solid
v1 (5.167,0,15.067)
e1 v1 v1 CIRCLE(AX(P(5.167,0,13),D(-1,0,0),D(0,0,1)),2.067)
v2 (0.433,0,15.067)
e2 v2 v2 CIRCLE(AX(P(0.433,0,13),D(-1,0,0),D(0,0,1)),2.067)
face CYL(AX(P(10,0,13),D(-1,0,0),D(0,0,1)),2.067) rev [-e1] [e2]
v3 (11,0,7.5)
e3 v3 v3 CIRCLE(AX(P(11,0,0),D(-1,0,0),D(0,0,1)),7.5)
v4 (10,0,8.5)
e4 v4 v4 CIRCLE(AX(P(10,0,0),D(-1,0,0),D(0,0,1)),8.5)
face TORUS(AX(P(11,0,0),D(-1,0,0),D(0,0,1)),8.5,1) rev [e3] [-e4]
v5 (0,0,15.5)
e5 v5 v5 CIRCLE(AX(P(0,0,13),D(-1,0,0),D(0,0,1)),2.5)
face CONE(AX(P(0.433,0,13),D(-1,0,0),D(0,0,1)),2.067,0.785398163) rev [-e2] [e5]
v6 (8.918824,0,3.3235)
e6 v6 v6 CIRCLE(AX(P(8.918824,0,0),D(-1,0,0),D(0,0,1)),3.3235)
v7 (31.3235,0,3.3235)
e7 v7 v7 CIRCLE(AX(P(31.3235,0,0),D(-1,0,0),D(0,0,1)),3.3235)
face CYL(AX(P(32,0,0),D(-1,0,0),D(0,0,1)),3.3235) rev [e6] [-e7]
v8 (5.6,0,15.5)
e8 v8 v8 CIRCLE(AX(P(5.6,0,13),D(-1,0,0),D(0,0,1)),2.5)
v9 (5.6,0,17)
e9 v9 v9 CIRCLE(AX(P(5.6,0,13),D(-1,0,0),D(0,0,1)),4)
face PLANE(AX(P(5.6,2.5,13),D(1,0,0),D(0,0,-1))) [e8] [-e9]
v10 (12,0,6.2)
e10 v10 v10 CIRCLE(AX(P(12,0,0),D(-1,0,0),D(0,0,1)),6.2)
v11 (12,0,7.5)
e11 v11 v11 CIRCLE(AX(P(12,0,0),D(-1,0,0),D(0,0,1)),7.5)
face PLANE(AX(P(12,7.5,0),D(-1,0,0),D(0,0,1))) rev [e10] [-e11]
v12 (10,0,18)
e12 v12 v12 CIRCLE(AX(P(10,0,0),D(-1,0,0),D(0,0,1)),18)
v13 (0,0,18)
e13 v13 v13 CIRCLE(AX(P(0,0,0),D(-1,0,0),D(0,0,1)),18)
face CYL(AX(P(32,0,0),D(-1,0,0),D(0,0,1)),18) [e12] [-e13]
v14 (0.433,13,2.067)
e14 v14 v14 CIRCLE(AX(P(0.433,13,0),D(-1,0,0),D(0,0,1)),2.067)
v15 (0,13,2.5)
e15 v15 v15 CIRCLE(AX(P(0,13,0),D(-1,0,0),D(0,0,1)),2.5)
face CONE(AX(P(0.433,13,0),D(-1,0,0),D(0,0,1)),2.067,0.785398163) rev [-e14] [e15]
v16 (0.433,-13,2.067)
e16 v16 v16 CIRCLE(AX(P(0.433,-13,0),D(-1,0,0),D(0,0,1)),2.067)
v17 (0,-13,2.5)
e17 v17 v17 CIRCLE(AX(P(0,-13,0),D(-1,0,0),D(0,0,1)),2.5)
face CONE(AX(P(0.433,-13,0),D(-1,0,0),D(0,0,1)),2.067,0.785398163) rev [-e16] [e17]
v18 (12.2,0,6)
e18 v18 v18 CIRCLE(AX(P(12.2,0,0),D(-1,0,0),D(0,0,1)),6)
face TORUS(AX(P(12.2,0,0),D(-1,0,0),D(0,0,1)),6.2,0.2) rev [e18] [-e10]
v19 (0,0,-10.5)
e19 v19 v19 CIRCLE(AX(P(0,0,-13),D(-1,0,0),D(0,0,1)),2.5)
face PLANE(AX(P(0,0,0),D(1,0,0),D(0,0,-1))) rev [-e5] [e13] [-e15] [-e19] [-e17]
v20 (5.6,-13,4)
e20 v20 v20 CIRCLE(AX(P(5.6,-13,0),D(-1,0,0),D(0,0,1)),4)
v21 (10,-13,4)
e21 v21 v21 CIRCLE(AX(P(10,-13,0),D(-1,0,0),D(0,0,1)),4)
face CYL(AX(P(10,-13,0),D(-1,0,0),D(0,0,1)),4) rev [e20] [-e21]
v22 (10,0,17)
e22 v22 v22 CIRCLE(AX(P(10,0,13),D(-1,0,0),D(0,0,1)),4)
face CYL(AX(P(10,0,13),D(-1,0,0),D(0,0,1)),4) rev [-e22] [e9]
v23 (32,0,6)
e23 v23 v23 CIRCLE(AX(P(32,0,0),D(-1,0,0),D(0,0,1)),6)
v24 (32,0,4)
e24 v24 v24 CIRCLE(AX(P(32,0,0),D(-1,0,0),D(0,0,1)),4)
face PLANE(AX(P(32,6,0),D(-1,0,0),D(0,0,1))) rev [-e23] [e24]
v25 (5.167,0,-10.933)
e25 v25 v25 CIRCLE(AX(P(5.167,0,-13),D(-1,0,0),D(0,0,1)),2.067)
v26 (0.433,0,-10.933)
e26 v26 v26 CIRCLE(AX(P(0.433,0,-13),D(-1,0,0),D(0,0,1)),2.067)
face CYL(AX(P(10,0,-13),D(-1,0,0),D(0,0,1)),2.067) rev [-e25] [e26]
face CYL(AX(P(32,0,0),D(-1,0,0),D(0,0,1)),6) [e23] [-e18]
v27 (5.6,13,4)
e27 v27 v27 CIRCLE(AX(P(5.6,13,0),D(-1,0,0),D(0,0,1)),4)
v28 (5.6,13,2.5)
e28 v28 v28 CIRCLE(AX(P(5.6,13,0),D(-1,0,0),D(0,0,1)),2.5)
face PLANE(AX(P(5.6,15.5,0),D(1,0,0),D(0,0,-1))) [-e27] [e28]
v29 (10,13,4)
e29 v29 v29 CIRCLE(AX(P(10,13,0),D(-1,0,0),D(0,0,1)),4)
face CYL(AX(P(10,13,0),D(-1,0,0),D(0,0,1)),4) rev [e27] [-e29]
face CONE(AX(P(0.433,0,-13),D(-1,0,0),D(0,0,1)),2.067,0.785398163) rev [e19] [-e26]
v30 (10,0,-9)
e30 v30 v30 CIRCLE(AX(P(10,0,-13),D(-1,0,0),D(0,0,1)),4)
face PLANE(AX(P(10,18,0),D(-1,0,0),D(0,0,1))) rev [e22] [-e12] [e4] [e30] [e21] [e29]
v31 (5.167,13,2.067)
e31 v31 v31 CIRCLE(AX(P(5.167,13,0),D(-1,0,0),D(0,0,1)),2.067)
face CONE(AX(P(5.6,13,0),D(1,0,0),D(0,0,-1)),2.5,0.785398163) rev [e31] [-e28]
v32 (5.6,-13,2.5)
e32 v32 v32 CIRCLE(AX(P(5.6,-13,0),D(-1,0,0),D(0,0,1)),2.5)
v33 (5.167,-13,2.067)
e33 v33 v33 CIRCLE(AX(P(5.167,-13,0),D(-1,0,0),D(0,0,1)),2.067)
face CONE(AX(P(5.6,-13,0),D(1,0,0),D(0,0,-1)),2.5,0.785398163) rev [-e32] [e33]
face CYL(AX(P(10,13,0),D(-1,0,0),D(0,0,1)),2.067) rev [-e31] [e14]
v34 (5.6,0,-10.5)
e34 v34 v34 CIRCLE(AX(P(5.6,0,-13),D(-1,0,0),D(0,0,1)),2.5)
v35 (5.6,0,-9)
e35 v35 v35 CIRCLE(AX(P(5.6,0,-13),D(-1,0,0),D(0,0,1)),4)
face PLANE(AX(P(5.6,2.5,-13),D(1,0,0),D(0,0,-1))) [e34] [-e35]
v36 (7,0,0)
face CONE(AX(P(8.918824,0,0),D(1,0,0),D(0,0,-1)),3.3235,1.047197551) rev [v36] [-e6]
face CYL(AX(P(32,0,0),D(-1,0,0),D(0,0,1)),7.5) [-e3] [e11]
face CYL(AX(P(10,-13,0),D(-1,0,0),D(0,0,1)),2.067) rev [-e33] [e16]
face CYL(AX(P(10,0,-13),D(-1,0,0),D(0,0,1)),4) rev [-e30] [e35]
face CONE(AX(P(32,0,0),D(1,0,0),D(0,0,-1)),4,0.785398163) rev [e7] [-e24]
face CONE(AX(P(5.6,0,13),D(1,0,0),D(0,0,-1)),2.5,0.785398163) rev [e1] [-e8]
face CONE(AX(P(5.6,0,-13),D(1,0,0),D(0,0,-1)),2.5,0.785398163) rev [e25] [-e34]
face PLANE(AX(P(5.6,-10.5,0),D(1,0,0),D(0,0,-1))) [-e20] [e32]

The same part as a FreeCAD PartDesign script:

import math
import FreeCAD as App
import Part
import Sketcher

V = App.Vector
Q = App.Units.Quantity


def add_polygon(sketch, points):
    """Adds a closed chain of lines whose ends are joined by coincident constraints."""
    first, n = sketch.GeometryCount, len(points)
    for a, b in zip(points, points[1:] + points[:1]):
        sketch.addGeometry(Part.LineSegment(App.Vector(*a, 0), App.Vector(*b, 0)), False)
    for i in range(n):
        sketch.addConstraint(Sketcher.Constraint("Coincident", first + i, 2, first + (i + 1) % n, 1))

doc = App.newDocument("Part")
params = doc.addObject("Spreadsheet::Sheet", "Params")
for row, (alias, value) in enumerate([
    ("sketch1_radius", "1 mm"),
    ("sketch1_radius2", "0.2 mm"),
    ("sketch1_width", "32 mm"),
    ("sketch1_width2", "1 mm"),
    ("sketch1_width3", "10 mm"),
    ("revolution_angle", "360 deg"),
    ("sketch2_width", "10 mm"),
    ("sketch2_height", "4 mm"),
    ("sketch2_width2", "4.4 mm"),
    ("sketch2_height2", "2.5 mm"),
    ("groove_angle", "360 deg"),
    ("sketch3_width", "10 mm"),
    ("sketch3_height", "4 mm"),
    ("sketch3_width2", "4.4 mm"),
    ("sketch3_height2", "2.5 mm"),
    ("groove2_angle", "360 deg"),
    ("sketch4_width", "10 mm"),
    ("sketch4_height", "4 mm"),
    ("sketch4_width2", "4.4 mm"),
    ("sketch4_height2", "2.5 mm"),
    ("groove3_angle", "360 deg"),
    ("sketch5_width", "10 mm"),
    ("sketch5_height", "4 mm"),
    ("sketch5_width2", "4.4 mm"),
    ("sketch5_height2", "2.5 mm"),
    ("groove4_angle", "360 deg"),
    ("sketch6_width", "25 mm"),
    ("sketch6_height", "4 mm"),
    ("groove5_angle", "360 deg"),
], start=1):
    params.set(f"A{row}", alias)
    params.set(f"B{row}", "=" + value)
    params.setAlias(f"B{row}", alias)

body = doc.addObject("PartDesign::Body", "Body")

sketch1 = body.newObject("Sketcher::SketchObject", "Sketch")
sketch1.AttachmentSupport = (doc.getObject("XY_Plane"), [""])
sketch1.MapMode = "FlatFace"
sketch1.addGeometry(Part.LineSegment(V(0, 18, 0), V(0, 0, 0)), False)
sketch1.addGeometry(Part.LineSegment(V(0, 0, 0), V(32, 0, 0)), False)
sketch1.addGeometry(Part.LineSegment(V(32, 0, 0), V(32, 6, 0)), False)
sketch1.addGeometry(Part.LineSegment(V(32, 6, 0), V(12.2, 6, 0)), False)
sketch1.addGeometry(Part.ArcOfCircle(Part.Circle(V(12.2, 6.2, 0), V(0, 0, 1), 0.2), math.radians(-180), math.radians(-90)), False)
sketch1.addGeometry(Part.LineSegment(V(12, 6.2, 0), V(12, 7.5, 0)), False)
sketch1.addGeometry(Part.LineSegment(V(12, 7.5, 0), V(11, 7.5, 0)), False)
sketch1.addGeometry(Part.ArcOfCircle(Part.Circle(V(11, 8.5, 0), V(0, 0, 1), 1), math.radians(-180), math.radians(-90)), False)
sketch1.addGeometry(Part.LineSegment(V(10, 8.5, 0), V(10, 18, 0)), False)
sketch1.addGeometry(Part.LineSegment(V(10, 18, 0), V(0, 18, 0)), False)
sketch1.addConstraint(Sketcher.Constraint("Coincident", 0, 2, 1, 1))
sketch1.addConstraint(Sketcher.Constraint("Coincident", 1, 2, 2, 1))
sketch1.addConstraint(Sketcher.Constraint("Coincident", 2, 2, 3, 1))
sketch1.addConstraint(Sketcher.Constraint("Tangent", 3, 2, 4, 2))
sketch1.addConstraint(Sketcher.Constraint("Tangent", 4, 1, 5, 1))
sketch1.addConstraint(Sketcher.Constraint("Coincident", 5, 2, 6, 1))
sketch1.addConstraint(Sketcher.Constraint("Tangent", 6, 2, 7, 2))
sketch1.addConstraint(Sketcher.Constraint("Tangent", 7, 1, 8, 1))
sketch1.addConstraint(Sketcher.Constraint("Coincident", 8, 2, 9, 1))
sketch1.addConstraint(Sketcher.Constraint("Coincident", 9, 2, 0, 1))
sketch1.addConstraint(Sketcher.Constraint("Vertical", 0))
sketch1.addConstraint(Sketcher.Constraint("Horizontal", 1))
sketch1.addConstraint(Sketcher.Constraint("Vertical", 2))
sketch1.addConstraint(Sketcher.Constraint("Horizontal", 3))
sketch1.addConstraint(Sketcher.Constraint("Vertical", 5))
sketch1.addConstraint(Sketcher.Constraint("Horizontal", 6))
sketch1.addConstraint(Sketcher.Constraint("Vertical", 8))
sketch1.addConstraint(Sketcher.Constraint("Horizontal", 9))
sketch1.addConstraint(Sketcher.Constraint("Coincident", 0, 2, -1, 1))
sketch1.addConstraint(Sketcher.Constraint("Radius", 7, 1.0))
sketch1.addConstraint(Sketcher.Constraint("Radius", 4, 0.2))
sketch1.addConstraint(Sketcher.Constraint("DistanceX", 1, 1, 1, 2, 32.0))
sketch1.addConstraint(Sketcher.Constraint("DistanceX", 6, 2, 6, 1, 1.0))
sketch1.addConstraint(Sketcher.Constraint("DistanceX", 9, 2, 9, 1, 10.0))
sketch1.addConstraint(Sketcher.Constraint("DistanceY", 0, 2, 0, 1, 18.0))
sketch1.addConstraint(Sketcher.Constraint("DistanceY", 2, 1, 2, 2, 6.0))
sketch1.addConstraint(Sketcher.Constraint("DistanceY", 5, 1, 5, 2, 1.3))
sketch1.setExpression("Constraints[19]", "Params.sketch1_radius")
sketch1.setExpression("Constraints[20]", "Params.sketch1_radius2")
sketch1.setExpression("Constraints[21]", "Params.sketch1_width")
sketch1.setExpression("Constraints[22]", "Params.sketch1_width2")
sketch1.setExpression("Constraints[23]", "Params.sketch1_width3")
revolution = body.newObject("PartDesign::Revolution", "Revolution")
revolution.Profile = sketch1
revolution.ReferenceAxis = (sketch1, ["H_Axis"])
revolution.setExpression("Angle", "Params.revolution_angle")

sketch2 = body.newObject("Sketcher::SketchObject", "Sketch001")
sketch2.AttachmentSupport = (doc.getObject("XY_Plane"), [""])
sketch2.MapMode = "FlatFace"
add_polygon(sketch2, [(0, 15.5), (0, 13), (10, 13), (10, 17), (5.6, 17), (5.6, 15.5), (5.2, 15.1), (0.4, 15.1)])
sketch2.addGeometry(Part.LineSegment(V(10, 13, 0), V(0, 13, 0)), True)
sketch2.addConstraint(Sketcher.Constraint("Vertical", 0))
sketch2.addConstraint(Sketcher.Constraint("Horizontal", 1))
sketch2.addConstraint(Sketcher.Constraint("Vertical", 2))
sketch2.addConstraint(Sketcher.Constraint("Horizontal", 3))
sketch2.addConstraint(Sketcher.Constraint("Vertical", 4))
sketch2.addConstraint(Sketcher.Constraint("Horizontal", 6))
sketch2.addConstraint(Sketcher.Constraint("Horizontal", 8))
sketch2.addConstraint(Sketcher.Constraint("Coincident", 8, 1, 1, 2))
sketch2.addConstraint(Sketcher.Constraint("PointOnObject", 0, 2, -2))
sketch2.addConstraint(Sketcher.Constraint("PointOnObject", 8, 2, -2))
sketch2.addConstraint(Sketcher.Constraint("Perpendicular", 5, 7))
sketch2.addConstraint(Sketcher.Constraint("Horizontal", 4, 2, 7, 2))
sketch2.addConstraint(Sketcher.Constraint("Equal", 5, 7))
sketch2.addConstraint(Sketcher.Constraint("DistanceX", 1, 1, 1, 2, 10.0))
sketch2.addConstraint(Sketcher.Constraint("DistanceY", 2, 1, 2, 2, 4.0))
sketch2.addConstraint(Sketcher.Constraint("DistanceX", 3, 2, 3, 1, 4.4))
sketch2.addConstraint(Sketcher.Constraint("DistanceY", 0, 2, 0, 1, 2.5))
sketch2.addConstraint(Sketcher.Constraint("DistanceY", -1, 1, 0, 2, 13.0))
sketch2.addConstraint(Sketcher.Constraint("DistanceX", 6, 2, 6, 1, 4.734))
sketch2.setExpression("Constraints[21]", "Params.sketch2_width")
sketch2.setExpression("Constraints[22]", "Params.sketch2_height")
sketch2.setExpression("Constraints[23]", "Params.sketch2_width2")
sketch2.setExpression("Constraints[24]", "Params.sketch2_height2")
groove = body.newObject("PartDesign::Groove", "Groove")
groove.Profile = sketch2
groove.ReferenceAxis = (sketch2, ["Axis0"])
groove.setExpression("Angle", "Params.groove_angle")

sketch3 = body.newObject("Sketcher::SketchObject", "Sketch002")
sketch3.AttachmentSupport = (doc.getObject("XY_Plane"), [""])
sketch3.MapMode = "FlatFace"
sketch3.AttachmentOffset = App.Placement(V(0, 0, 13), App.Rotation())
add_polygon(sketch3, [(0, 2.5), (0, 0), (10, 0), (10, 4), (5.6, 4), (5.6, 2.5), (5.2, 2.1), (0.4, 2.1)])
sketch3.addConstraint(Sketcher.Constraint("Vertical", 0))
sketch3.addConstraint(Sketcher.Constraint("Horizontal", 1))
sketch3.addConstraint(Sketcher.Constraint("Vertical", 2))
sketch3.addConstraint(Sketcher.Constraint("Horizontal", 3))
sketch3.addConstraint(Sketcher.Constraint("Vertical", 4))
sketch3.addConstraint(Sketcher.Constraint("Horizontal", 6))
sketch3.addConstraint(Sketcher.Constraint("Coincident", 0, 2, -1, 1))
sketch3.addConstraint(Sketcher.Constraint("Perpendicular", 5, 7))
sketch3.addConstraint(Sketcher.Constraint("Horizontal", 4, 2, 7, 2))
sketch3.addConstraint(Sketcher.Constraint("Equal", 5, 7))
sketch3.addConstraint(Sketcher.Constraint("DistanceX", 1, 1, 1, 2, 10.0))
sketch3.addConstraint(Sketcher.Constraint("DistanceY", 2, 1, 2, 2, 4.0))
sketch3.addConstraint(Sketcher.Constraint("DistanceX", 3, 2, 3, 1, 4.4))
sketch3.addConstraint(Sketcher.Constraint("DistanceY", 0, 2, 0, 1, 2.5))
sketch3.addConstraint(Sketcher.Constraint("DistanceX", 6, 2, 6, 1, 4.734))
sketch3.setExpression("Constraints[18]", "Params.sketch3_width")
sketch3.setExpression("Constraints[19]", "Params.sketch3_height")
sketch3.setExpression("Constraints[20]", "Params.sketch3_width2")
sketch3.setExpression("Constraints[21]", "Params.sketch3_height2")
groove2 = body.newObject("PartDesign::Groove", "Groove001")
groove2.Profile = sketch3
groove2.ReferenceAxis = (sketch3, ["H_Axis"])
groove2.setExpression("Angle", "Params.groove2_angle")

sketch4 = body.newObject("Sketcher::SketchObject", "Sketch003")
sketch4.AttachmentSupport = (doc.getObject("XY_Plane"), [""])
sketch4.MapMode = "FlatFace"
add_polygon(sketch4, [(0, -10.5), (0, -13), (10, -13), (10, -9), (5.6, -9), (5.6, -10.5), (5.2, -10.9), (0.4, -10.9)])
sketch4.addGeometry(Part.LineSegment(V(10, -13, 0), V(0, -13, 0)), True)
sketch4.addConstraint(Sketcher.Constraint("Vertical", 0))
sketch4.addConstraint(Sketcher.Constraint("Horizontal", 1))
sketch4.addConstraint(Sketcher.Constraint("Vertical", 2))
sketch4.addConstraint(Sketcher.Constraint("Horizontal", 3))
sketch4.addConstraint(Sketcher.Constraint("Vertical", 4))
sketch4.addConstraint(Sketcher.Constraint("Horizontal", 6))
sketch4.addConstraint(Sketcher.Constraint("Horizontal", 8))
sketch4.addConstraint(Sketcher.Constraint("Coincident", 8, 1, 1, 2))
sketch4.addConstraint(Sketcher.Constraint("PointOnObject", 0, 2, -2))
sketch4.addConstraint(Sketcher.Constraint("PointOnObject", 8, 2, -2))
sketch4.addConstraint(Sketcher.Constraint("Perpendicular", 5, 7))
sketch4.addConstraint(Sketcher.Constraint("Horizontal", 4, 2, 7, 2))
sketch4.addConstraint(Sketcher.Constraint("Equal", 5, 7))
sketch4.addConstraint(Sketcher.Constraint("DistanceX", 1, 1, 1, 2, 10.0))
sketch4.addConstraint(Sketcher.Constraint("DistanceY", 2, 1, 2, 2, 4.0))
sketch4.addConstraint(Sketcher.Constraint("DistanceX", 3, 2, 3, 1, 4.4))
sketch4.addConstraint(Sketcher.Constraint("DistanceY", 0, 2, 0, 1, 2.5))
sketch4.addConstraint(Sketcher.Constraint("DistanceY", 0, 2, -1, 1, 13.0))
sketch4.addConstraint(Sketcher.Constraint("DistanceX", 6, 2, 6, 1, 4.734))
sketch4.setExpression("Constraints[21]", "Params.sketch4_width")
sketch4.setExpression("Constraints[22]", "Params.sketch4_height")
sketch4.setExpression("Constraints[23]", "Params.sketch4_width2")
sketch4.setExpression("Constraints[24]", "Params.sketch4_height2")
groove3 = body.newObject("PartDesign::Groove", "Groove002")
groove3.Profile = sketch4
groove3.ReferenceAxis = (sketch4, ["Axis0"])
groove3.setExpression("Angle", "Params.groove3_angle")

sketch5 = body.newObject("Sketcher::SketchObject", "Sketch004")
sketch5.AttachmentSupport = (doc.getObject("XY_Plane"), [""])
sketch5.MapMode = "FlatFace"
sketch5.AttachmentOffset = App.Placement(V(0, 0, -13), App.Rotation())
add_polygon(sketch5, [(0, 2.5), (0, 0), (10, 0), (10, 4), (5.6, 4), (5.6, 2.5), (5.2, 2.1), (0.4, 2.1)])
sketch5.addConstraint(Sketcher.Constraint("Vertical", 0))
sketch5.addConstraint(Sketcher.Constraint("Horizontal", 1))
sketch5.addConstraint(Sketcher.Constraint("Vertical", 2))
sketch5.addConstraint(Sketcher.Constraint("Horizontal", 3))
sketch5.addConstraint(Sketcher.Constraint("Vertical", 4))
sketch5.addConstraint(Sketcher.Constraint("Horizontal", 6))
sketch5.addConstraint(Sketcher.Constraint("Coincident", 0, 2, -1, 1))
sketch5.addConstraint(Sketcher.Constraint("Perpendicular", 5, 7))
sketch5.addConstraint(Sketcher.Constraint("Horizontal", 4, 2, 7, 2))
sketch5.addConstraint(Sketcher.Constraint("Equal", 5, 7))
sketch5.addConstraint(Sketcher.Constraint("DistanceX", 1, 1, 1, 2, 10.0))
sketch5.addConstraint(Sketcher.Constraint("DistanceY", 2, 1, 2, 2, 4.0))
sketch5.addConstraint(Sketcher.Constraint("DistanceX", 3, 2, 3, 1, 4.4))
sketch5.addConstraint(Sketcher.Constraint("DistanceY", 0, 2, 0, 1, 2.5))
sketch5.addConstraint(Sketcher.Constraint("DistanceX", 6, 2, 6, 1, 4.734))
sketch5.setExpression("Constraints[18]", "Params.sketch5_width")
sketch5.setExpression("Constraints[19]", "Params.sketch5_height")
sketch5.setExpression("Constraints[20]", "Params.sketch5_width2")
sketch5.setExpression("Constraints[21]", "Params.sketch5_height2")
groove4 = body.newObject("PartDesign::Groove", "Groove003")
groove4.Profile = sketch5
groove4.ReferenceAxis = (sketch5, ["H_Axis"])
groove4.setExpression("Angle", "Params.groove4_angle")

sketch6 = body.newObject("Sketcher::SketchObject", "Sketch005")
sketch6.AttachmentSupport = (doc.getObject("XY_Plane"), [""])
sketch6.MapMode = "FlatFace"
add_polygon(sketch6, [(8.9, 3.3), (7, 0), (32, 0), (32, 4), (31.3, 3.3)])
sketch6.addConstraint(Sketcher.Constraint("Horizontal", 1))
sketch6.addConstraint(Sketcher.Constraint("Vertical", 2))
sketch6.addConstraint(Sketcher.Constraint("Horizontal", 4))
sketch6.addConstraint(Sketcher.Constraint("PointOnObject", 0, 2, -1))
sketch6.addConstraint(Sketcher.Constraint("DistanceX", 1, 1, 1, 2, 25.0))
sketch6.addConstraint(Sketcher.Constraint("DistanceY", 2, 1, 2, 2, 4.0))
sketch6.addConstraint(Sketcher.Constraint("Angle", 0, Q("-120 deg")))
sketch6.addConstraint(Sketcher.Constraint("Angle", 3, Q("-135 deg")))
sketch6.addConstraint(Sketcher.Constraint("DistanceX", -1, 1, 0, 2, 7.0))
sketch6.addConstraint(Sketcher.Constraint("DistanceX", -1, 1, 3, 2, 31.3235))
sketch6.setExpression("Constraints[9]", "Params.sketch6_width")
sketch6.setExpression("Constraints[10]", "Params.sketch6_height")
groove5 = body.newObject("PartDesign::Groove", "Groove004")
groove5.Profile = sketch6
groove5.ReferenceAxis = (sketch6, ["H_Axis"])
groove5.setExpression("Angle", "Params.groove5_angle")

doc.recompute()
